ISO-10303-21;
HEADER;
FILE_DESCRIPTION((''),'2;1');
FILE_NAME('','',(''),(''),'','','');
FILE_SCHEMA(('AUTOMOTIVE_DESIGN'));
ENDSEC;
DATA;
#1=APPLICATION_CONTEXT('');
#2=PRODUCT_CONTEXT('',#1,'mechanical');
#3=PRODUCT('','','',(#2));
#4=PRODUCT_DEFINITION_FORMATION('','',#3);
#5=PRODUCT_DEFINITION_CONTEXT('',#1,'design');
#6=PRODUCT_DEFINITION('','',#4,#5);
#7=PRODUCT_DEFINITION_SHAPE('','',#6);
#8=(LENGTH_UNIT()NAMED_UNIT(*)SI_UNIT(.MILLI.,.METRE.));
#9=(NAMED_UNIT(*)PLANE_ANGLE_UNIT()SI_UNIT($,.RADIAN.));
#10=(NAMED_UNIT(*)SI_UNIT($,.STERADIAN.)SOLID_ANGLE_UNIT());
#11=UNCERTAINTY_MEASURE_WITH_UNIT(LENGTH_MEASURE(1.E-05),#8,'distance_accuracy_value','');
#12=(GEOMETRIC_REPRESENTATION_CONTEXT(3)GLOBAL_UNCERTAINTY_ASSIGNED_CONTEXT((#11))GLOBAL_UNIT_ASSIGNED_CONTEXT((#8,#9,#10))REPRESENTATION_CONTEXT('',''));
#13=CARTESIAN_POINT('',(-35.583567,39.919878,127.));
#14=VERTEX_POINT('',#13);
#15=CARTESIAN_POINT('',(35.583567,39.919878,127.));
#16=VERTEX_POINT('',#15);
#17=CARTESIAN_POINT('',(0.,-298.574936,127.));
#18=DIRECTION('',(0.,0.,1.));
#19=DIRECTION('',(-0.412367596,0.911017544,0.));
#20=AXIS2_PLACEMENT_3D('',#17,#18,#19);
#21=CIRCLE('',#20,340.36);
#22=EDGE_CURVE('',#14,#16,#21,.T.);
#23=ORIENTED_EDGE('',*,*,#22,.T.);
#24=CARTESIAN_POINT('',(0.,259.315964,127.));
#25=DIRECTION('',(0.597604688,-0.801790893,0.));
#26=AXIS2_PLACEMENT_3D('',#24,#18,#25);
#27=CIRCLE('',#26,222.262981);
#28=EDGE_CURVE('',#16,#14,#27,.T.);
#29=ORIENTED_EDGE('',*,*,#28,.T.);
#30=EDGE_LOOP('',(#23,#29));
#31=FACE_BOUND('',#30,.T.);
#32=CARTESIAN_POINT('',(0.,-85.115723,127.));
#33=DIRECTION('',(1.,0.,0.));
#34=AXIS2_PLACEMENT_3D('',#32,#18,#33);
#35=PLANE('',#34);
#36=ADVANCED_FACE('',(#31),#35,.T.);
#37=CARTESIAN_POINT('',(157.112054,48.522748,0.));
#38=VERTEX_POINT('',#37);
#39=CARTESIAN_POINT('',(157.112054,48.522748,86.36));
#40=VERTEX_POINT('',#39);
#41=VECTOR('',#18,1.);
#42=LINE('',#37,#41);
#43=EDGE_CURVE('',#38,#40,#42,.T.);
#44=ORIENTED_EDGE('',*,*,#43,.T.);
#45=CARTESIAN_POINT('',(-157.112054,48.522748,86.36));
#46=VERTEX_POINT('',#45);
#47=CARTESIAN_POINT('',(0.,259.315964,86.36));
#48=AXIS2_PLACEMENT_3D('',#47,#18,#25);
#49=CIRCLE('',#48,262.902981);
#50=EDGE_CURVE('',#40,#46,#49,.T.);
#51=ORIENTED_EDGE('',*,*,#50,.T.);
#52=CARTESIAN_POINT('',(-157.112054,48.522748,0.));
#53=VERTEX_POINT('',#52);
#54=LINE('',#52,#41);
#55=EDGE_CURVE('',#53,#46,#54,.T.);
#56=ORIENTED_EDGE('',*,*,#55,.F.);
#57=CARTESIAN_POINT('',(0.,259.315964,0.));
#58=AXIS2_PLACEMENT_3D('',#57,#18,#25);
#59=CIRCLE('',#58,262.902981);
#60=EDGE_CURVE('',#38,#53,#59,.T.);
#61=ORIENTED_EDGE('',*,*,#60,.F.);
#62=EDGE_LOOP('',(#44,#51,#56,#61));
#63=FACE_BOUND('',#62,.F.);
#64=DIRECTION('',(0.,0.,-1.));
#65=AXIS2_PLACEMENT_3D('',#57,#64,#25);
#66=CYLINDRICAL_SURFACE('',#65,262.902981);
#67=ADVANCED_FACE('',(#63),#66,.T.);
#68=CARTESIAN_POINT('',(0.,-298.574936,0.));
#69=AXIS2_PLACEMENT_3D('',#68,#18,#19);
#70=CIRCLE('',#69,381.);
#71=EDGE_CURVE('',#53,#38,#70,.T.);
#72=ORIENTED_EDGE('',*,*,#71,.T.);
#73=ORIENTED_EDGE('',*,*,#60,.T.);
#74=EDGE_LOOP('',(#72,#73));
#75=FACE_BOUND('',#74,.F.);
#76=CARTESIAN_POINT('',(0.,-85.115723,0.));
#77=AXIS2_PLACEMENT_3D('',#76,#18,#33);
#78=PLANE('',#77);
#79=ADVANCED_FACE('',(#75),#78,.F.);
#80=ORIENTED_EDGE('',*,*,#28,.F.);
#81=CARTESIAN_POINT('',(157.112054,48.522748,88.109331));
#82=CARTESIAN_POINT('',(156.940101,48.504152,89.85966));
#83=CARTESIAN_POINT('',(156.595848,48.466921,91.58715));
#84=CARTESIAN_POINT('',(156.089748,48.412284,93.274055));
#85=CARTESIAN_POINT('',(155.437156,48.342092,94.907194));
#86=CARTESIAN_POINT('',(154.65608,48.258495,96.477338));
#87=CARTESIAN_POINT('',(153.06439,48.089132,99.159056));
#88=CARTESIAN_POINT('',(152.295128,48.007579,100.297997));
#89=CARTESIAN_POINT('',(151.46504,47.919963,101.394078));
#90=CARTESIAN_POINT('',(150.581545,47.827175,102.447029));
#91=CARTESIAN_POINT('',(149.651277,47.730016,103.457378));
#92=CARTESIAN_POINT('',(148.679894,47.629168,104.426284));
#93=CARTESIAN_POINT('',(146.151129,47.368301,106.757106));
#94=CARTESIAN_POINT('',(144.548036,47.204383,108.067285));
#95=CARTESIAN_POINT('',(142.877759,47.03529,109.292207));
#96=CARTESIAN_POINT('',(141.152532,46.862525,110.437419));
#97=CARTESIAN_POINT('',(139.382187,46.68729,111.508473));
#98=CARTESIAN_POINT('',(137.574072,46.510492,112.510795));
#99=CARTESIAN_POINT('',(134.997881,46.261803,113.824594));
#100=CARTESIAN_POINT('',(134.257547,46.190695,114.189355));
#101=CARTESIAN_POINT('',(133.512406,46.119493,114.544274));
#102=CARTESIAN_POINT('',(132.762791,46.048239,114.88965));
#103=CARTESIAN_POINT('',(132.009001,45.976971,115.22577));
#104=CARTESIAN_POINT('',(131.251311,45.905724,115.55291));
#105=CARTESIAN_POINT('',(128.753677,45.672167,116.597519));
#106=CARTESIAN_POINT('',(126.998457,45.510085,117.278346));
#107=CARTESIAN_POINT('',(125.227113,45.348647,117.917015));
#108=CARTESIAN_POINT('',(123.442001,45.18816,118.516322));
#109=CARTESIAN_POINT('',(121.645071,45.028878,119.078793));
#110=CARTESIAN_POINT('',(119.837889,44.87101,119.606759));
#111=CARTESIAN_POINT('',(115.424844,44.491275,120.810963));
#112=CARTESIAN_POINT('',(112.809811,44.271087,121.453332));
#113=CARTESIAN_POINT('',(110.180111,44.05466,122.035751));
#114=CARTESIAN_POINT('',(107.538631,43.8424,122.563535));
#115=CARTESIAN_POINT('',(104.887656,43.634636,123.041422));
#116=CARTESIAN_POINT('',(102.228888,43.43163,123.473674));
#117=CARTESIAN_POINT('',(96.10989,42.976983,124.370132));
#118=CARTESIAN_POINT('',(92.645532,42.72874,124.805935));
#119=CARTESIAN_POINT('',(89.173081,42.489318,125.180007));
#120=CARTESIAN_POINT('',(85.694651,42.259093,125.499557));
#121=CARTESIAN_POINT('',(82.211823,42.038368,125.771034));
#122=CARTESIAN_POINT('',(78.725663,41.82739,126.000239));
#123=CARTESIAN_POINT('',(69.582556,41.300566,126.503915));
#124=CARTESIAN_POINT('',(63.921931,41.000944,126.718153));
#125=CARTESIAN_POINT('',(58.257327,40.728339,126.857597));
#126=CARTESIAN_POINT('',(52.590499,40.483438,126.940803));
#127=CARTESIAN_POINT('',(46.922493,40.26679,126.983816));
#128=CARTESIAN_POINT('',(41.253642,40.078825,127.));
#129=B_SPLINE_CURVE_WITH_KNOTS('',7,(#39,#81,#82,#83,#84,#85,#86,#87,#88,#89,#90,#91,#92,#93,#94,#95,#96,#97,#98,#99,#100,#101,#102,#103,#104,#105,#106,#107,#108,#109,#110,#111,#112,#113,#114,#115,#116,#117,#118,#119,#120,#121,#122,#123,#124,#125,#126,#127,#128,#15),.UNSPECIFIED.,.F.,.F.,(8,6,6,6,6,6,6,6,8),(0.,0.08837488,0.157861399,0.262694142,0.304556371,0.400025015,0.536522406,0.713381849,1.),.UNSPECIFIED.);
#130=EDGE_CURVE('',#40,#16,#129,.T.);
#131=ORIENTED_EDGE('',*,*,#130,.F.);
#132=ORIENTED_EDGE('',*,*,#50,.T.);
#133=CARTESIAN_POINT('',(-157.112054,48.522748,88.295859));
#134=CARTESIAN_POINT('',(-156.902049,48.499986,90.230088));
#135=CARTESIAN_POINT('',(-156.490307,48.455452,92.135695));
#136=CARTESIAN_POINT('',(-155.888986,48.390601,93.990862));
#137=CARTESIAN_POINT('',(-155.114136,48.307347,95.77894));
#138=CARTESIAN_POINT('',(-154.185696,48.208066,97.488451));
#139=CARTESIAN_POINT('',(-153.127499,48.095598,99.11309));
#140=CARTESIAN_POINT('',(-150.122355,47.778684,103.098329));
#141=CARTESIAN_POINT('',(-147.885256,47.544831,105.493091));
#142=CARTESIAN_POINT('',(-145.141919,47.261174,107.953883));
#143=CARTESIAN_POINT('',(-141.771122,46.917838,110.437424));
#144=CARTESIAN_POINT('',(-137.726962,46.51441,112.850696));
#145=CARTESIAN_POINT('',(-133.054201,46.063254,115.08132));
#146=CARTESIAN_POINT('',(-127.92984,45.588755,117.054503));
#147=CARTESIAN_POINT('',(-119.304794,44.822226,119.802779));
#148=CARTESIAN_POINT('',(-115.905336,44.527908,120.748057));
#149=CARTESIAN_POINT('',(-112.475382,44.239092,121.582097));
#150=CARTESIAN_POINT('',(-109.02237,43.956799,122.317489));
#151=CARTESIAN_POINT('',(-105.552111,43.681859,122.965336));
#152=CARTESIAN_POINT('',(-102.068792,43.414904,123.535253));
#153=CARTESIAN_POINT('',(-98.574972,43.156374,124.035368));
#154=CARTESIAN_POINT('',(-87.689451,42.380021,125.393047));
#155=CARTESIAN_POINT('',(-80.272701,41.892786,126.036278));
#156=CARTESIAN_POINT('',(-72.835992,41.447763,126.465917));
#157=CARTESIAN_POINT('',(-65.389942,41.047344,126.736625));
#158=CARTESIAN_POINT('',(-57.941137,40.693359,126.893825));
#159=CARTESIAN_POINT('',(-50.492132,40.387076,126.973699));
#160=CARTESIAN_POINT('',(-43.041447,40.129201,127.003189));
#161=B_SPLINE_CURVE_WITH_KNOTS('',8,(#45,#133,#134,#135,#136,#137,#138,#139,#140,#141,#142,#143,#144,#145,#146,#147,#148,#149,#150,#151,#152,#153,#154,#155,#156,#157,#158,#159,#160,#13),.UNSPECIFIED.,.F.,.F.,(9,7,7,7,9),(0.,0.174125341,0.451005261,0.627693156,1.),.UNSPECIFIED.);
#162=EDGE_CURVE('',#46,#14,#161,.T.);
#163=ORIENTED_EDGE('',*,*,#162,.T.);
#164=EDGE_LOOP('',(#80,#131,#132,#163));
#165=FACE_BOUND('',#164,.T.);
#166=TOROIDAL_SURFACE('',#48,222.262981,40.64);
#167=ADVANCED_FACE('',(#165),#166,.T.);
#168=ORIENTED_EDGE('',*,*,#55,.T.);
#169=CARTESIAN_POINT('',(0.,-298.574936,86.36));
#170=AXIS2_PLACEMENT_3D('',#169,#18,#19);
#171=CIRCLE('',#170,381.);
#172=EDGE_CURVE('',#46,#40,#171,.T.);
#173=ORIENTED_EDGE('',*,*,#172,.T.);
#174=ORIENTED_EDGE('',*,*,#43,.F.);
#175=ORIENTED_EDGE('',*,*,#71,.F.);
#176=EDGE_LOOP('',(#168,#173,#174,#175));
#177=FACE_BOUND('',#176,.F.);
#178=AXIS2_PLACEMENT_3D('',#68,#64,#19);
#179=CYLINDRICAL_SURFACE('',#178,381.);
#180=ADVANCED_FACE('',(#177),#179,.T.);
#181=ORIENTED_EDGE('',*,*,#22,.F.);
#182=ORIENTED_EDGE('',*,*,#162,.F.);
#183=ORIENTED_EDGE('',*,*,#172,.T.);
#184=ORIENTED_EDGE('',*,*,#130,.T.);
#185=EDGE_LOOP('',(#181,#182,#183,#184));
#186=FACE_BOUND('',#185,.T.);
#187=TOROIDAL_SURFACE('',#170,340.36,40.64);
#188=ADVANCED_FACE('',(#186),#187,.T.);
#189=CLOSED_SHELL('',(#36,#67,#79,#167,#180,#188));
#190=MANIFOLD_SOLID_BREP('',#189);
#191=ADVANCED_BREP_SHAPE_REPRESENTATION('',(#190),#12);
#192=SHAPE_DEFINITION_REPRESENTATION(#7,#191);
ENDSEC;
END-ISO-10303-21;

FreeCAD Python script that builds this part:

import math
import FreeCAD as App
import Part
import Sketcher
Q = App.Units.Quantity


def edges_at(feature, points):
    """Names of the edges that pass closest to the given points."""
    edges = feature.Shape.Edges
    near = lambda p: min(range(len(edges)), key=lambda i: edges[i].distToShape(Part.Vertex(*p))[0])
    return sorted({f"Edge{near(p) + 1}" for p in points})

doc = App.newDocument("Part")
params = doc.addObject("Spreadsheet::Sheet", "Params")
for row, (alias, value) in enumerate([
    ("sketch1_radius", "15 in"),
    ("pad1_length", "5 in"),
    ("fillet_radius", "1.6 in"),
], start=1):
    params.set(f"A{row}", alias)
    params.set(f"B{row}", "=" + value)
    params.setAlias(f"B{row}", alias)

body = doc.addObject("PartDesign::Body", "Body")

# Sketch on XY plane
sketch1 = body.newObject("Sketcher::SketchObject", "Sketch")
sketch1.AttachmentSupport = (doc.getObject("XY_Plane"), [""])
sketch1.MapMode = "FlatFace"
sketch1.addGeometry(Part.ArcOfCircle(Part.Circle(App.Vector(0, -299, 0), App.Vector(0, 0, 1), 381), math.radians(114), math.radians(426)), False)
sketch1.addGeometry(Part.ArcOfCircle(Part.Circle(App.Vector(0, 259, 0), App.Vector(0, 0, 1), 263), math.radians(-53), math.radians(233)), False)
sketch1.addConstraint(Sketcher.Constraint("Coincident", 0, 1, 1, 2))
sketch1.addConstraint(Sketcher.Constraint("Coincident", 1, 1, 0, 2))
sketch1.addConstraint(Sketcher.Constraint("Symmetric", 0, 1, 1, 1, -2))
sketch1.addConstraint(Sketcher.Constraint("Radius", 0, Q("15 in")))
sketch1.addConstraint(Sketcher.Constraint("Radius", 1, 262.902981))
sketch1.addConstraint(Sketcher.Constraint("DistanceY", 0, 3, 1, 3, 557.8909))
sketch1.addConstraint(Sketcher.Constraint("DistanceY", -1, 1, 0, 1, 48.522748))
sketch1.setExpression("Constraints[3]", "Params.sketch1_radius")
pad1 = body.newObject("PartDesign::Pad", "Pad")
pad1.Profile = sketch1
pad1.setExpression("Length", "Params.pad1_length")
doc.recompute()

fillet = body.newObject("PartDesign::Fillet", "Fillet")
fillet.Base = (pad1, edges_at(pad1, [(0, 522.219, 127), (0, -679.575, 127)]))
fillet.setExpression("Radius", "Params.fillet_radius")

doc.recompute()
